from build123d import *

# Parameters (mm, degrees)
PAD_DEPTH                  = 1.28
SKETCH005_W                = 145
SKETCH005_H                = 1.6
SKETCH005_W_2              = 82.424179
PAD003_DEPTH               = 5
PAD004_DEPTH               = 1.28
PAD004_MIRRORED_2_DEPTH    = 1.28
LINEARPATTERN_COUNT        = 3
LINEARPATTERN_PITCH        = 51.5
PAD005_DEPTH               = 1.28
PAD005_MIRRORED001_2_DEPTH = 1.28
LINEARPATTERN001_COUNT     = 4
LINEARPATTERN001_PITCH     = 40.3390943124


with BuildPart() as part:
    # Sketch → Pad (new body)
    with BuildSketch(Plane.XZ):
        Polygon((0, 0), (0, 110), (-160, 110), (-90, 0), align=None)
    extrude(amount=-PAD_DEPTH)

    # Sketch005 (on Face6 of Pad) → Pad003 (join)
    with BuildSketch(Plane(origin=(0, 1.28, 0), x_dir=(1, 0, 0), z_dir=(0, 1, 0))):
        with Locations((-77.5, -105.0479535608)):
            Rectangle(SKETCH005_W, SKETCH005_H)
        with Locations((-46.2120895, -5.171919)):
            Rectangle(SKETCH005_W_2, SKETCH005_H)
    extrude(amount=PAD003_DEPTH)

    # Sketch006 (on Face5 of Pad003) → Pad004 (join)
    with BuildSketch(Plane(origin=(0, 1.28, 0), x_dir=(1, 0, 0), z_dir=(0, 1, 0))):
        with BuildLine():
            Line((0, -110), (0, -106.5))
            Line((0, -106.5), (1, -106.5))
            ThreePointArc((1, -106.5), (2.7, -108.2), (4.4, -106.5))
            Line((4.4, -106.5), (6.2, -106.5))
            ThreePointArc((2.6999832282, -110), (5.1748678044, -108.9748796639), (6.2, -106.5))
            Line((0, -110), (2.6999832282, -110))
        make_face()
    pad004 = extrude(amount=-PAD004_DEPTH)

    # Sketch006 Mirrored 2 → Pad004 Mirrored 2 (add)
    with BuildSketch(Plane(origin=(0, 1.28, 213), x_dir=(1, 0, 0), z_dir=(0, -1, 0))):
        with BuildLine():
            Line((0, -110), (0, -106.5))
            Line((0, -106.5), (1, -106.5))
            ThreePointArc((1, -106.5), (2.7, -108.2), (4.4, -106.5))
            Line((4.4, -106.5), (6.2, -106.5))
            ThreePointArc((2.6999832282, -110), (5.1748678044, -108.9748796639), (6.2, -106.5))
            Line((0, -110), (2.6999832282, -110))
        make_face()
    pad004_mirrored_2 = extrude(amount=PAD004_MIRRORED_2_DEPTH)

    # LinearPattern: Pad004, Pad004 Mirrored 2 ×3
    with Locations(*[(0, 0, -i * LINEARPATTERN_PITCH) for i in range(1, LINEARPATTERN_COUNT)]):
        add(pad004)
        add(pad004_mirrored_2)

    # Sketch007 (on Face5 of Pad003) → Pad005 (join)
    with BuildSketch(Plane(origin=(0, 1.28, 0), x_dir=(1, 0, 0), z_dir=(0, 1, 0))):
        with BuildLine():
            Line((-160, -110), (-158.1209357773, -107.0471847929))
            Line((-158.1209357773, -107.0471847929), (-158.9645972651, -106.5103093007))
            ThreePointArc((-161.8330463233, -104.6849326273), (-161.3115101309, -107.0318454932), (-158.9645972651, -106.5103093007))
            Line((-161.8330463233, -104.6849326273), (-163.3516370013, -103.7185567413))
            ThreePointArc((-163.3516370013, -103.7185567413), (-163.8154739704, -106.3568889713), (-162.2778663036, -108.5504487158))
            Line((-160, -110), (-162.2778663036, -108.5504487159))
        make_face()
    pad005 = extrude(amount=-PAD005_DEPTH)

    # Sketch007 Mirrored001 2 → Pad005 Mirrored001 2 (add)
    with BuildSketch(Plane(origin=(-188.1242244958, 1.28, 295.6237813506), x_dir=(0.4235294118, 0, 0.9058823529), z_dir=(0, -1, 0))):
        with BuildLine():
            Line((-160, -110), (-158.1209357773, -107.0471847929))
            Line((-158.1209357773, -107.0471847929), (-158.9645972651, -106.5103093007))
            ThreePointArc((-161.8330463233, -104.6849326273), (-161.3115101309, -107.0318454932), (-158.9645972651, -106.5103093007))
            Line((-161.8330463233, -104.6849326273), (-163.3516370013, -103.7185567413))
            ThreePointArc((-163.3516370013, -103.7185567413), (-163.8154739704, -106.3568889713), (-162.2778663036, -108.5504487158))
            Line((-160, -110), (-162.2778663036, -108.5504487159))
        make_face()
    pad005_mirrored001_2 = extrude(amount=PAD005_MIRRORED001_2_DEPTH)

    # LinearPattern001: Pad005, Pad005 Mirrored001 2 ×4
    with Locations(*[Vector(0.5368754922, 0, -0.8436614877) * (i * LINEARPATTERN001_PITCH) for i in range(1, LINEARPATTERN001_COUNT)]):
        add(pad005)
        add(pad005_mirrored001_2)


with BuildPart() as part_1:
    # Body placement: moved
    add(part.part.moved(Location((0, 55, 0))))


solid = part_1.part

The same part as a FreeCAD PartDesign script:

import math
import FreeCAD as App
import Part
import Sketcher
Q = App.Units.Quantity

doc = App.newDocument("Part")
body = doc.addObject("PartDesign::Body", "Body")

# Sketch on XZ plane
sketch1 = body.newObject("Sketcher::SketchObject", "Sketch")
sketch1.AttachmentSupport = (doc.getObject("XZ_Plane"), [""])
sketch1.MapMode = "FlatFace"
sketch1.addGeometry([
    Part.LineSegment(App.Vector(0, 0, 0), App.Vector(0, 110, 0)),
    Part.LineSegment(App.Vector(0, 110, 0), App.Vector(-160, 110, 0)),
    Part.LineSegment(App.Vector(-160, 110, 0), App.Vector(-90, 0, 0)),
    Part.LineSegment(App.Vector(-90, 0, 0), App.Vector(0, 0, 0)),
], False)
sketch1.addConstraint([
    Sketcher.Constraint("Coincident", 0, 2, 1, 1),
    Sketcher.Constraint("Coincident", 1, 2, 2, 1),
    Sketcher.Constraint("Coincident", 2, 2, 3, 1),
    Sketcher.Constraint("Coincident", 3, 2, 0, 1),
    Sketcher.Constraint("Vertical", 0),
    Sketcher.Constraint("Horizontal", 1),
    Sketcher.Constraint("Horizontal", 3),
    Sketcher.Constraint("Coincident", 3, 2, -1, 1),
    Sketcher.Constraint("DistanceX", 1, 2, 1, 1, Q("160 mm")),
    Sketcher.Constraint("DistanceX", 3, 1, 3, 2, Q("90 mm")),
    Sketcher.Constraint("DistanceY", 0, 1, 0, 2, Q("110 mm")),
])
pad1 = body.newObject("PartDesign::Pad", "Pad")
pad1.Profile = sketch1
pad1.Length = 1.28
pad1.Reversed = True

# Sketch on XZ plane
sketch2 = body.newObject("Sketcher::SketchObject", "Sketch001")
sketch2.AttachmentSupport = (doc.getObject("XZ_Plane"), [""])
sketch2.MapMode = "FlatFace"
sketch2.AttachmentOffset = App.Placement(App.Vector(0, 0, -1.28), App.Rotation())
sketch2.addGeometry([
    Part.LineSegment(App.Vector(-150, 104.2, 0), App.Vector(-150, 105.8, 0)),  # 0
    Part.LineSegment(App.Vector(-150, 105.8, 0), App.Vector(-5, 105.8, 0)),  # 1
    Part.LineSegment(App.Vector(-5, 105.8, 0), App.Vector(-5, 104.2, 0)),  # 2
    Part.LineSegment(App.Vector(-5, 104.2, 0), App.Vector(-150, 104.2, 0)),  # 3
    Part.LineSegment(App.Vector(-87.4, 4.4, 0), App.Vector(-87.4, 6, 0)),  # 4
    Part.LineSegment(App.Vector(-87.4, 6, 0), App.Vector(-5, 6, 0)),  # 5
    Part.LineSegment(App.Vector(-5, 6, 0), App.Vector(-5, 4.4, 0)),  # 6
    Part.LineSegment(App.Vector(-5, 4.4, 0), App.Vector(-87.4, 4.4, 0)),  # 7
], False)
sketch2.addConstraint([
    Sketcher.Constraint("Coincident", 0, 2, 1, 1),
    Sketcher.Constraint("Coincident", 1, 2, 2, 1),
    Sketcher.Constraint("Coincident", 2, 2, 3, 1),
    Sketcher.Constraint("Coincident", 3, 2, 0, 1),
    Sketcher.Constraint("Coincident", 4, 2, 5, 1),
    Sketcher.Constraint("Coincident", 5, 2, 6, 1),
    Sketcher.Constraint("Coincident", 6, 2, 7, 1),
    Sketcher.Constraint("Coincident", 7, 2, 4, 1),
    Sketcher.Constraint("Vertical", 0),
    Sketcher.Constraint("Horizontal", 1),
    Sketcher.Constraint("Vertical", 2),
    Sketcher.Constraint("Horizontal", 3),
    Sketcher.Constraint("Vertical", 4),
    Sketcher.Constraint("Horizontal", 5),
    Sketcher.Constraint("Vertical", 6),
    Sketcher.Constraint("Horizontal", 7),
    Sketcher.Constraint("Vertical", 2, 2, 5, 2),
    Sketcher.Constraint("Equal", 2, 4),
    Sketcher.Constraint("DistanceX", 1, 1, 1, 2, Q("145 mm")),
    Sketcher.Constraint("DistanceY", 0, 1, 0, 2, Q("1.6 mm")),
    Sketcher.Constraint("DistanceX", 0, 2, -1, 1, Q("150 mm")),
    Sketcher.Constraint("DistanceX", 5, 1, 5, 2, Q("82.424179 mm")),
    Sketcher.Constraint("DistanceY", -1, 1, 4, 2, Q("5.971919 mm")),
    Sketcher.Constraint("DistanceY", -1, 1, 0, 2, Q("105.847954 mm")),
])
pad2 = body.newObject("PartDesign::Pad", "Pad001")
pad2.Profile = sketch2
pad2.Length = 5
pad2.Reversed = True

# Sketch on XZ plane
sketch3 = body.newObject("Sketcher::SketchObject", "Sketch002")
sketch3.AttachmentSupport = (doc.getObject("XZ_Plane"), [""])
sketch3.MapMode = "FlatFace"
sketch3.AttachmentOffset = App.Placement(App.Vector(0, 0, -1.28), App.Rotation())
sketch3.addGeometry([
    Part.LineSegment(App.Vector(0, 106.5, 0), App.Vector(0, 110, 0)),  # 0
    Part.LineSegment(App.Vector(0, 110, 0), App.Vector(2.7, 110, 0)),  # 1
    Part.ArcOfCircle(Part.Circle(App.Vector(2.7, 106.5, 0), App.Vector(0, 0, 1), 3.5), math.radians(0), math.radians(90)),  # 2
    Part.LineSegment(App.Vector(6.2, 106.5, 0), App.Vector(4.4, 106.5, 0)),  # 3
    Part.ArcOfCircle(Part.Circle(App.Vector(2.7, 106.5, 0), App.Vector(0, 0, 1), 1.7), math.radians(0), math.radians(180)),  # 4
    Part.LineSegment(App.Vector(1, 106.5, 0), App.Vector(0, 106.5, 0)),  # 5
], False)
sketch3.addConstraint([
    Sketcher.Constraint("Coincident", 0, 2, 1, 1),
    Sketcher.Constraint("Coincident", 1, 2, 2, 2),
    Sketcher.Constraint("Coincident", 2, 1, 3, 1),
    Sketcher.Constraint("Coincident", 3, 2, 4, 1),
    Sketcher.Constraint("Coincident", 4, 2, 5, 1),
    Sketcher.Constraint("Coincident", 5, 2, 0, 1),
    Sketcher.Constraint("Vertical", 0),
    Sketcher.Constraint("Horizontal", 1),
    Sketcher.Constraint("Horizontal", 3),
    Sketcher.Constraint("Horizontal", 5),
    Sketcher.Constraint("Coincident", 4, 3, 2, 3),
    Sketcher.Constraint("PointOnObject", 0, 2, -2),
    Sketcher.Constraint("Horizontal", 4, 3, 2, 1),
    Sketcher.Constraint("Horizontal", 3, 2, 4, 2),
    Sketcher.Constraint("Radius", 2, Q("3.5 mm")),
    Sketcher.Constraint("Radius", 4, Q("1.7 mm")),
    Sketcher.Constraint("DistanceX", 5, 2, 5, 1, Q("1 mm")),
    Sketcher.Constraint("DistanceY", -1, 1, 0, 2, Q("110 mm")),
    Sketcher.Constraint("DistanceX", 1, 1, 1, 2, Q("2.699983 mm")),
])
pad3 = body.newObject("PartDesign::Pad", "Pad002")
pad3.Profile = sketch3
pad3.Length = 1.28

# Sketch on XZ plane
sketch4 = body.newObject("Sketcher::SketchObject", "Sketch003")
sketch4.AttachmentSupport = (doc.getObject("XZ_Plane"), [""])
sketch4.MapMode = "FlatFace"
sketch4.AttachmentOffset = App.Placement(App.Vector(0, 0, -1.28), App.Rotation())
sketch4.addGeometry([
    Part.LineSegment(App.Vector(0, 106.5, 0), App.Vector(0, 103, 0)),  # 0
    Part.LineSegment(App.Vector(0, 103, 0), App.Vector(2.7, 103, 0)),  # 1
    Part.ArcOfCircle(Part.Circle(App.Vector(2.7, 106.5, 0), App.Vector(0, 0, 1), 3.5), math.radians(-90), math.radians(0)),  # 2
    Part.LineSegment(App.Vector(6.2, 106.5, 0), App.Vector(4.4, 106.5, 0)),  # 3
    Part.ArcOfCircle(Part.Circle(App.Vector(2.7, 106.5, 0), App.Vector(0, 0, 1), 1.7), math.radians(180), math.radians(360)),  # 4
    Part.LineSegment(App.Vector(1, 106.5, 0), App.Vector(0, 106.5, 0)),  # 5
], False)
sketch4.addConstraint([
    Sketcher.Constraint("Coincident", 0, 2, 1, 1),
    Sketcher.Constraint("Coincident", 1, 2, 2, 1),
    Sketcher.Constraint("Coincident", 2, 2, 3, 1),
    Sketcher.Constraint("Coincident", 3, 2, 4, 2),
    Sketcher.Constraint("Coincident", 4, 1, 5, 1),
    Sketcher.Constraint("Coincident", 5, 2, 0, 1),
    Sketcher.Constraint("Vertical", 0),
    Sketcher.Constraint("Horizontal", 1),
    Sketcher.Constraint("Horizontal", 3),
    Sketcher.Constraint("Horizontal", 5),
    Sketcher.Constraint("Coincident", 4, 3, 2, 3),
    Sketcher.Constraint("PointOnObject", 0, 2, -2),
    Sketcher.Constraint("Horizontal", 4, 3, 2, 2),
    Sketcher.Constraint("Horizontal", 3, 2, 4, 1),
    Sketcher.Constraint("Radius", 2, Q("3.5 mm")),
    Sketcher.Constraint("Radius", 4, Q("1.7 mm")),
    Sketcher.Constraint("DistanceX", 5, 2, 5, 1, Q("1 mm")),
    Sketcher.Constraint("DistanceY", -1, 1, 0, 2, Q("103 mm")),
    Sketcher.Constraint("DistanceX", 1, 1, 1, 2, Q("2.699983 mm")),
])
pad4 = body.newObject("PartDesign::Pad", "Pad003")
pad4.Profile = sketch4
pad4.Length = 1.28
doc.recompute()

linearpattern = body.newObject("PartDesign::LinearPattern", "LinearPattern")
linearpattern.Originals = [pad3, pad4]
linearpattern.Direction = (doc.getObject("Z_Axis"), [""])
linearpattern.Mode = "offset"
linearpattern.Offset = 51.5
linearpattern.Occurrences = 3
linearpattern.Reversed = True
body.Tip = linearpattern

# Sketch on XZ plane
sketch5 = body.newObject("Sketcher::SketchObject", "Sketch004")
sketch5.AttachmentSupport = (doc.getObject("XZ_Plane"), [""])
sketch5.MapMode = "FlatFace"
sketch5.AttachmentOffset = App.Placement(App.Vector(0, 0, -1.28), App.Rotation())
sketch5.addGeometry([
    Part.LineSegment(App.Vector(-160, 110, 0), App.Vector(-158.1, 107, 0)),  # 0
    Part.LineSegment(App.Vector(-158.1, 107, 0), App.Vector(-159, 106.5, 0)),  # 1
    Part.ArcOfCircle(Part.Circle(App.Vector(-160.4, 105.6, 0), App.Vector(0, 0, 1), 1.7), math.radians(32), math.radians(212)),  # 2
    Part.LineSegment(App.Vector(-161.8, 104.7, 0), App.Vector(-163.4, 103.7, 0)),  # 3
    Part.ArcOfCircle(Part.Circle(App.Vector(-160.4, 105.6, 0), App.Vector(0, 0, 1), 3.5), math.radians(122), math.radians(212)),  # 4
    Part.LineSegment(App.Vector(-162.3, 108.6, 0), App.Vector(-160, 110, 0)),  # 5
], False)
sketch5.addConstraint([
    Sketcher.Constraint("Coincident", 0, 2, 1, 1),
    Sketcher.Constraint("Coincident", 1, 2, 2, 1),
    Sketcher.Constraint("Coincident", 2, 2, 3, 1),
    Sketcher.Constraint("Coincident", 3, 2, 4, 2),
    Sketcher.Constraint("Coincident", 4, 1, 5, 1),
    Sketcher.Constraint("Coincident", 5, 2, 0, 1),
    Sketcher.Constraint("Coincident", 4, 3, 2, 3),
    Sketcher.Constraint("Perpendicular", 0, 1),
    Sketcher.Constraint("Parallel", 1, 3),
    Sketcher.Constraint("Parallel", 3, 5),
    Sketcher.Constraint("Radius", 2, Q("1.7 mm")),
    Sketcher.Constraint("Radius", 4, Q("3.5 mm")),
    Sketcher.Constraint("Distance", 1, Q("1 mm")),
    Sketcher.Constraint("DistanceX", 5, 2, -1, 1, Q("160 mm")),
    Sketcher.Constraint("DistanceY", -1, 1, 5, 2, Q("110 mm")),
    Sketcher.Constraint("Distance", 0, Q("3.5 mm")),
    Sketcher.Constraint("DistanceX", 3, 2, 0, 2, Q("5.230701 mm")),
    Sketcher.Constraint("DistanceX", 2, 3, -1, 1, Q("160.398822 mm")),
    Sketcher.Constraint("DistanceY", -1, 1, 4, 1, Q("108.550449 mm")),
])
pad5 = body.newObject("PartDesign::Pad", "Pad004")
pad5.Profile = sketch5
pad5.Length = 1.28

# Sketch on XZ plane
sketch6 = body.newObject("Sketcher::SketchObject", "Sketch005")
sketch6.AttachmentSupport = (doc.getObject("XZ_Plane"), [""])
sketch6.MapMode = "FlatFace"
sketch6.AttachmentOffset = App.Placement(App.Vector(0, 0, -1.28), App.Rotation())
sketch6.addGeometry([
    Part.LineSegment(App.Vector(-156.2, 104.1, 0), App.Vector(-158.1, 107, 0)),  # 0
    Part.LineSegment(App.Vector(-158.1, 107, 0), App.Vector(-159, 106.5, 0)),  # 1
    Part.ArcOfCircle(Part.Circle(App.Vector(-160.4, 105.6, 0), App.Vector(0, 0, 1), 1.7), math.radians(-148), math.radians(32)),  # 2
    Part.LineSegment(App.Vector(-161.8, 104.7, 0), App.Vector(-163.4, 103.7, 0)),  # 3
    Part.ArcOfCircle(Part.Circle(App.Vector(-160.4, 105.6, 0), App.Vector(0, 0, 1), 3.5), math.radians(-148), math.radians(-58)),  # 4
    Part.LineSegment(App.Vector(-158.5, 102.6, 0), App.Vector(-156.2, 104.1, 0)),  # 5
], False)
sketch6.addConstraint([
    Sketcher.Constraint("Coincident", 0, 2, 1, 1),
    Sketcher.Constraint("Coincident", 1, 2, 2, 2),
    Sketcher.Constraint("Coincident", 2, 1, 3, 1),
    Sketcher.Constraint("Coincident", 3, 2, 4, 1),
    Sketcher.Constraint("Coincident", 4, 2, 5, 1),
    Sketcher.Constraint("Coincident", 5, 2, 0, 1),
    Sketcher.Constraint("Coincident", 4, 3, 2, 3),
    Sketcher.Constraint("Perpendicular", 0, 1),
    Sketcher.Constraint("Parallel", 1, 3),
    Sketcher.Constraint("Parallel", 3, 5),
    Sketcher.Constraint("Radius", 2, Q("1.7 mm")),
    Sketcher.Constraint("Radius", 4, Q("3.5 mm")),
    Sketcher.Constraint("Distance", 1, Q("1 mm")),
    Sketcher.Constraint("Distance", 0, Q("3.5 mm")),
    Sketcher.Constraint("DistanceX", 3, 2, 0, 2, Q("5.230701 mm")),
    Sketcher.Constraint("DistanceX", 2, 3, -1, 1, Q("160.398822 mm")),
    Sketcher.Constraint("DistanceY", -1, 1, 2, 3, Q("105.597621 mm")),
    Sketcher.Constraint("DistanceY", -1, 1, 1, 2, Q("106.510309 mm")),
    Sketcher.Constraint("DistanceY", -1, 1, 4, 2, Q("102.644818 mm")),
])
pad6 = body.newObject("PartDesign::Pad", "Pad005")
pad6.Profile = sketch6
pad6.Length = 1.28
doc.recompute()

datumline = body.newObject("PartDesign::Line", "DatumLine")
datumline.Placement = App.Placement(App.Vector(0, 0, 0), App.Rotation(App.Vector(0, 0, 1), App.Vector(0.536875492, 0, -0.843661488)))
linearpattern2 = body.newObject("PartDesign::LinearPattern", "LinearPattern001")
linearpattern2.Originals = [pad5, pad6]
linearpattern2.Direction = (datumline, [""])
linearpattern2.Mode = "offset"
linearpattern2.Offset = 40.339094
linearpattern2.Occurrences = 4
body.Tip = linearpattern2
body2 = doc.addObject("PartDesign::Body", "Body001")
doc.recompute()

body.Placement = App.Placement(App.Vector(0, 55, 0), App.Rotation(App.Vector(0, 0, 1), 0))
boolean = body2.newObject("PartDesign::Boolean", "Boolean")
boolean.Type = "Fuse"
boolean.addObjects([body])

doc.recompute()
